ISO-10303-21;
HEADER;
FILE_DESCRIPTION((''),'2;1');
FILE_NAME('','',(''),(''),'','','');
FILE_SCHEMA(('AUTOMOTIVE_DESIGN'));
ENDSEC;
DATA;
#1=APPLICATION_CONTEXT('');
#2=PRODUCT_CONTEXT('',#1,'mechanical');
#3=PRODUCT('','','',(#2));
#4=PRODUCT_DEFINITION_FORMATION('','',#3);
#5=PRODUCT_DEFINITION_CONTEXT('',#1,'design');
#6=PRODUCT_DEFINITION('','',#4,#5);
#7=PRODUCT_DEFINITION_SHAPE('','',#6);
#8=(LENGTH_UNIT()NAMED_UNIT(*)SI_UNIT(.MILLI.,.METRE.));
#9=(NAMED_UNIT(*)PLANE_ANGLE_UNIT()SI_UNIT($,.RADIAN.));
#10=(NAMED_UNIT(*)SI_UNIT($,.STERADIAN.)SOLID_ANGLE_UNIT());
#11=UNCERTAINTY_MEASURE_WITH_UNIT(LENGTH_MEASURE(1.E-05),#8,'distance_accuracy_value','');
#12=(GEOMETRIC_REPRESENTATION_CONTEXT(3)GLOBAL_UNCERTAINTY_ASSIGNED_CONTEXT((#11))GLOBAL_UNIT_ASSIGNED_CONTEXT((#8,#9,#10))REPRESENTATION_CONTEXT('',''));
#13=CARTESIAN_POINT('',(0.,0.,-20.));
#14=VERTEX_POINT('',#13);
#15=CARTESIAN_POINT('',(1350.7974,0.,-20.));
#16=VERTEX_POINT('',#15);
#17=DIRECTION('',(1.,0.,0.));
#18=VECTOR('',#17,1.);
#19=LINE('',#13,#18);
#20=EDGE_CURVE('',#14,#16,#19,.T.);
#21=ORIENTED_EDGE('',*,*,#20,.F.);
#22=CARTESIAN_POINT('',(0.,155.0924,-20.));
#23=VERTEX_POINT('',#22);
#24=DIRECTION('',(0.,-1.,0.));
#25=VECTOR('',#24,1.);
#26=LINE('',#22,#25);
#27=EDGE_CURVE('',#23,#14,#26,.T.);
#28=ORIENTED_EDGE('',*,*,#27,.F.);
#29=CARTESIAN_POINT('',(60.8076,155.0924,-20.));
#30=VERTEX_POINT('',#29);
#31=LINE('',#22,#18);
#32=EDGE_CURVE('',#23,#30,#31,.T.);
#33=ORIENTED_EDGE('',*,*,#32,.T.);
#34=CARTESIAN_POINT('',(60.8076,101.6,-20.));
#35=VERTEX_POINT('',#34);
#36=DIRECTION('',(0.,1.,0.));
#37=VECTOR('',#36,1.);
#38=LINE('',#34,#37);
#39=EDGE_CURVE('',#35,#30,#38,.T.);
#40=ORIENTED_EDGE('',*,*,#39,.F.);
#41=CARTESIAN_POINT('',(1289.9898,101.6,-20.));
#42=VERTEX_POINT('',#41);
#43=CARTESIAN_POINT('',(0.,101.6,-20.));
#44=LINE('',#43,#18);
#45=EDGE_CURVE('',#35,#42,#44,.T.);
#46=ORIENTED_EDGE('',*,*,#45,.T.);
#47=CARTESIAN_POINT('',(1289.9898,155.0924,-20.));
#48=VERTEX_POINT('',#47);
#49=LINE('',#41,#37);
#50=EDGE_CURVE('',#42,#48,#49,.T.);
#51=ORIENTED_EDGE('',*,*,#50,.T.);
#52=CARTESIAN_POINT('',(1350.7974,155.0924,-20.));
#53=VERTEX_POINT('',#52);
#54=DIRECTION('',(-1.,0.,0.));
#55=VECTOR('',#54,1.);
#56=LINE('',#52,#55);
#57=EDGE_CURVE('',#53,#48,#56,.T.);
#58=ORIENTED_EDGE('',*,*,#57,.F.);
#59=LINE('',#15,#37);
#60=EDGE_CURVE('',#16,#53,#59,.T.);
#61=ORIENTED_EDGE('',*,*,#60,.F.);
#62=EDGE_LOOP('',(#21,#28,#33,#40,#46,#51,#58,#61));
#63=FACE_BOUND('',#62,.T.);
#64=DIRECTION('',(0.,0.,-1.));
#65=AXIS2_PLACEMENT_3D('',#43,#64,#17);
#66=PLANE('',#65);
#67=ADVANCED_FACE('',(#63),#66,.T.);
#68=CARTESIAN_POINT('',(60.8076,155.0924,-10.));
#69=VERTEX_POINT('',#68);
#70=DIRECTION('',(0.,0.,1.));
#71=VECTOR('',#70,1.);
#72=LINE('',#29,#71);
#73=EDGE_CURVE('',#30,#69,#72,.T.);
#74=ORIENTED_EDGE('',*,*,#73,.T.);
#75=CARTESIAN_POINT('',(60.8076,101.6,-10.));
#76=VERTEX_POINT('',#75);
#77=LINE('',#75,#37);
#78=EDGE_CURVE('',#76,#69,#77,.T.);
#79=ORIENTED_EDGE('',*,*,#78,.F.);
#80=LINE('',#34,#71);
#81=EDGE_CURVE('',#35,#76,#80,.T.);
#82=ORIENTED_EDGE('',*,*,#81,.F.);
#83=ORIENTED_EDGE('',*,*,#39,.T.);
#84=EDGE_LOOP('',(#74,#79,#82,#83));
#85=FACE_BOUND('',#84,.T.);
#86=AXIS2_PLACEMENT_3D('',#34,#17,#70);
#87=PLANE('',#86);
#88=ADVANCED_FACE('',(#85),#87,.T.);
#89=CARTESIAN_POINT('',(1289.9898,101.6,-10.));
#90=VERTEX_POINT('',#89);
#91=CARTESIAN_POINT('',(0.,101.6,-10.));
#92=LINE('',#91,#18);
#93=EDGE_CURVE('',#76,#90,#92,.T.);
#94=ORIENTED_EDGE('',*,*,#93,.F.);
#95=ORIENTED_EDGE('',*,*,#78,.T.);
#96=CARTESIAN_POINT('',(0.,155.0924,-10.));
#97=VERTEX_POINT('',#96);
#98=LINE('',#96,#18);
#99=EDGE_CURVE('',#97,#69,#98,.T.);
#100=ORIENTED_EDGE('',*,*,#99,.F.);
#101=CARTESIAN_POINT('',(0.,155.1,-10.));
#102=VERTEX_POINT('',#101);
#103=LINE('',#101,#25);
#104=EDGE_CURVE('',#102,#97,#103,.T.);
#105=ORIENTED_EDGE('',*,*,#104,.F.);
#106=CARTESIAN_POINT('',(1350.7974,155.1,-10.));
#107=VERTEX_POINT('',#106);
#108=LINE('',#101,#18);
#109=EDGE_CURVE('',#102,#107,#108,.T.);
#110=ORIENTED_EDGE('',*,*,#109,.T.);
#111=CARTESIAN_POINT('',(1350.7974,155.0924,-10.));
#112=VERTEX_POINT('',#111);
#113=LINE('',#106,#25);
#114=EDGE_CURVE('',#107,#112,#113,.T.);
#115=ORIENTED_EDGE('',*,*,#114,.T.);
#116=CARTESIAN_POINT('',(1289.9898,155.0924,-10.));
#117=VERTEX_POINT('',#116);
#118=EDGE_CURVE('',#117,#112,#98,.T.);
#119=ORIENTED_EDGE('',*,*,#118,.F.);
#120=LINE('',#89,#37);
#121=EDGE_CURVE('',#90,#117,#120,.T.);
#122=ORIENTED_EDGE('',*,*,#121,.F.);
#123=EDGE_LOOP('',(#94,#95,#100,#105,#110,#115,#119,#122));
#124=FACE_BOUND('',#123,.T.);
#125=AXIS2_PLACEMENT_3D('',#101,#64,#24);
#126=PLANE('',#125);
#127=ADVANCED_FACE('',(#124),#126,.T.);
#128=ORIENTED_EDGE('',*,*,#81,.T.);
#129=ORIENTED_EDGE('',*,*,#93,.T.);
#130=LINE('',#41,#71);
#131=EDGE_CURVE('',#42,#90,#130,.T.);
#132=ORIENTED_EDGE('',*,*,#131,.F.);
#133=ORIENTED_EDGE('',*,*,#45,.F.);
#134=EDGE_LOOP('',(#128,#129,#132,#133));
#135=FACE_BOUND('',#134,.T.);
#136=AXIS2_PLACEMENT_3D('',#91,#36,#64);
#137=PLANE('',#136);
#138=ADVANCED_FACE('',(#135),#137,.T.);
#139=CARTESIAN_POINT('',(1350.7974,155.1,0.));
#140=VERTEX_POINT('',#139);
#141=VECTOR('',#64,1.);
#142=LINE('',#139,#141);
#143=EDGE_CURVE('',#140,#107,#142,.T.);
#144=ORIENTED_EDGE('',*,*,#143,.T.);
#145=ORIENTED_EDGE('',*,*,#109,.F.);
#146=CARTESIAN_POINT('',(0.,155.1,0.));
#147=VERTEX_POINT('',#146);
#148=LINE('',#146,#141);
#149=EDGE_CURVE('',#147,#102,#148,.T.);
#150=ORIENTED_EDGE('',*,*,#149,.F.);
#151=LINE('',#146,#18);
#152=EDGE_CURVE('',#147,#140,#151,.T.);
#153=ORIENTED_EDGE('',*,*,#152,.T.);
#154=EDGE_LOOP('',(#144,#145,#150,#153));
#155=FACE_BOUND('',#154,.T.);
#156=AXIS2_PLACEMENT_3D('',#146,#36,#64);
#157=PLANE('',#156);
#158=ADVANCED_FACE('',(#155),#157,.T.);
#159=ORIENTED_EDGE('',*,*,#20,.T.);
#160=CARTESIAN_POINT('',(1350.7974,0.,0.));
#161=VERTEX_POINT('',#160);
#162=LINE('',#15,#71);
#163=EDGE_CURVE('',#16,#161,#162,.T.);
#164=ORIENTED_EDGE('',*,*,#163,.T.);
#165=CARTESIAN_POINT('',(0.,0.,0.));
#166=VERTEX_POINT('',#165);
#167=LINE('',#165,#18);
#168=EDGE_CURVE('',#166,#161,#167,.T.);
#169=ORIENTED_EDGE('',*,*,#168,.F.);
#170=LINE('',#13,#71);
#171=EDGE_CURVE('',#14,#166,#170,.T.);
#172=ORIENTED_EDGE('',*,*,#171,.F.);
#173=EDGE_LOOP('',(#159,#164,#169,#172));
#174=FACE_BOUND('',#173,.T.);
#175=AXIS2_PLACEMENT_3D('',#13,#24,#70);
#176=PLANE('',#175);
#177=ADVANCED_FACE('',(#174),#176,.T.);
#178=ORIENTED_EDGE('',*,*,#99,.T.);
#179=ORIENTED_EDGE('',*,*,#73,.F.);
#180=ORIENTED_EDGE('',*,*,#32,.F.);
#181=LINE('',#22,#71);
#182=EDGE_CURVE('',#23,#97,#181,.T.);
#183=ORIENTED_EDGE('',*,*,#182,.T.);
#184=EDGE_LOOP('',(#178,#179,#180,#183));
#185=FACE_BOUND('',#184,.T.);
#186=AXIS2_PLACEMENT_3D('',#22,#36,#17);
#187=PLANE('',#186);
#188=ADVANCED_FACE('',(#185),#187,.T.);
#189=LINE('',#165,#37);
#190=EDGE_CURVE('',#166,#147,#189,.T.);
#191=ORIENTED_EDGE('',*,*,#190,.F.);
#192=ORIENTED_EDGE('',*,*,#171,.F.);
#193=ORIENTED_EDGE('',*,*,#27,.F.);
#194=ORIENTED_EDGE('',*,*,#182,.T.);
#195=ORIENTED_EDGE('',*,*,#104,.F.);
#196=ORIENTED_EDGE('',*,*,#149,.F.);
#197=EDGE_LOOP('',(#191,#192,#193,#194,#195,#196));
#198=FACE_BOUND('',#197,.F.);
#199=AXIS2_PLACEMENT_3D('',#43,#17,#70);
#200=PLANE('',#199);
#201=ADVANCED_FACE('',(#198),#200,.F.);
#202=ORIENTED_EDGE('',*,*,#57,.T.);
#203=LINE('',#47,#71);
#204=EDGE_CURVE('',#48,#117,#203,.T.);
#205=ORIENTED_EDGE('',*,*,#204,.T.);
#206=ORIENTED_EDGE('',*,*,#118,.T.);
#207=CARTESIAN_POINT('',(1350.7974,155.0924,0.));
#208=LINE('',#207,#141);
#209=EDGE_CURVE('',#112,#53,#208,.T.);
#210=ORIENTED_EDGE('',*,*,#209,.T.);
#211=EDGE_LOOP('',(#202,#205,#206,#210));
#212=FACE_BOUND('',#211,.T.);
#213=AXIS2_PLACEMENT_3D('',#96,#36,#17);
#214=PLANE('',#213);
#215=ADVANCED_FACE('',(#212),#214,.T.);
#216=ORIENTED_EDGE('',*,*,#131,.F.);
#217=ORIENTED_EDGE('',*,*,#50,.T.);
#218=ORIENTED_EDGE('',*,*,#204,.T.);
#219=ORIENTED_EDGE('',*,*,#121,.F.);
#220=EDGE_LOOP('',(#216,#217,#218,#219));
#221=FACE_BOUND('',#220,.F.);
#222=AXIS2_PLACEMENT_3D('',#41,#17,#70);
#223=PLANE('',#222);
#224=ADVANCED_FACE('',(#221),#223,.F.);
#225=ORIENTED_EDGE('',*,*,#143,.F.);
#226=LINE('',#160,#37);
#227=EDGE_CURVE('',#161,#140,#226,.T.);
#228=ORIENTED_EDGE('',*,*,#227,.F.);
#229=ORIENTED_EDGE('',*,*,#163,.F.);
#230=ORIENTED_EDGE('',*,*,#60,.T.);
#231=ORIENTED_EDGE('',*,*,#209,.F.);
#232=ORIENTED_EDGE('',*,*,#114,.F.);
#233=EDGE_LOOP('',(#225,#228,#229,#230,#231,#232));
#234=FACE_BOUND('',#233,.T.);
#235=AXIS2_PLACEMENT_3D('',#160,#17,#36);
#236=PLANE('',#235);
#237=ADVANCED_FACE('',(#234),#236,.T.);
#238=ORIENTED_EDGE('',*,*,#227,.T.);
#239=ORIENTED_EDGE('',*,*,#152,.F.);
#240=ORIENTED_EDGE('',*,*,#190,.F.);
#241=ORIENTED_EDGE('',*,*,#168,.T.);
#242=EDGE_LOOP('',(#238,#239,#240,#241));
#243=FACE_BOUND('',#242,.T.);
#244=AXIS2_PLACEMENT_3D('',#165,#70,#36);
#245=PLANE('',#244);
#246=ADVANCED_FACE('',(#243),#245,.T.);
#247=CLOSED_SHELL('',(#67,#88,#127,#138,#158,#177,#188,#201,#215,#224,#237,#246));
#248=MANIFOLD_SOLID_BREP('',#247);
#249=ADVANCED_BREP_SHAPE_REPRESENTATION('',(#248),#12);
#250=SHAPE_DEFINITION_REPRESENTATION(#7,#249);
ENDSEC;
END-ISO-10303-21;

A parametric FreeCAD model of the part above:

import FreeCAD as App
import Part
import Sketcher
Q = App.Units.Quantity

doc = App.newDocument("Part")
body = doc.addObject("PartDesign::Body", "Body")

sketch1 = doc.addObject("Sketcher::SketchObject", "Sketch")
body.addObject(sketch1)
sketch1.AttachmentSupport = (doc.YZ_Plane, [""])
sketch1.MapMode = "FlatFace"
sketch1.addGeometry(Part.LineSegment(App.Vector(155.1, 0, 0), App.Vector(0, 0, 0)), False)
sketch1.addGeometry(Part.LineSegment(App.Vector(0, 0, 0), App.Vector(0, -20, 0)), False)
sketch1.addGeometry(Part.LineSegment(App.Vector(0, -20, 0), App.Vector(101.6, -20, 0)), False)
sketch1.addGeometry(Part.LineSegment(App.Vector(101.6, -20, 0), App.Vector(101.6, -10, 0)), False)
sketch1.addGeometry(Part.LineSegment(App.Vector(101.6, -10, 0), App.Vector(155.1, -10, 0)), False)
sketch1.addGeometry(Part.LineSegment(App.Vector(155.1, -10, 0), App.Vector(155.1, 0, 0)), False)
sketch1.addConstraint(Sketcher.Constraint("Coincident", 0, 2, 1, 1))
sketch1.addConstraint(Sketcher.Constraint("Coincident", 1, 2, 2, 1))
sketch1.addConstraint(Sketcher.Constraint("Coincident", 2, 2, 3, 1))
sketch1.addConstraint(Sketcher.Constraint("Coincident", 3, 2, 4, 1))
sketch1.addConstraint(Sketcher.Constraint("Coincident", 4, 2, 5, 1))
sketch1.addConstraint(Sketcher.Constraint("Coincident", 5, 2, 0, 1))
sketch1.addConstraint(Sketcher.Constraint("Horizontal", 0))
sketch1.addConstraint(Sketcher.Constraint("Vertical", 1))
sketch1.addConstraint(Sketcher.Constraint("Horizontal", 2))
sketch1.addConstraint(Sketcher.Constraint("Vertical", 3))
sketch1.addConstraint(Sketcher.Constraint("Horizontal", 4))
sketch1.addConstraint(Sketcher.Constraint("Vertical", 5))
sketch1.addConstraint(Sketcher.Constraint("Coincident", 0, 2, -1, 1))
sketch1.addConstraint(Sketcher.Constraint("Equal", 3, 5))
sketch1.addConstraint(Sketcher.Constraint("DistanceX", 2, 1, 2, 2, Q("4 in")))
sketch1.addConstraint(Sketcher.Constraint("DistanceX", 0, 2, 0, 1, Q("6.1063 in")))
sketch1.addConstraint(Sketcher.Constraint("DistanceY", 1, 2, 1, 1, Q("0.7874 in")))
pad1 = doc.addObject("PartDesign::Pad", "Pad")
body.addObject(pad1)
pad1.Profile = sketch1
pad1.Length = Q("53.181 in")

sketch2 = doc.addObject("Sketcher::SketchObject", "Sketch001")
body.addObject(sketch2)
sketch2.AttachmentSupport = (doc.XZ_Plane, [""])
sketch2.MapMode = "FlatFace"
sketch2.AttachmentOffset = App.Placement(App.Vector(0, 0, -4 * 25.4), App.Rotation())
sketch2.addGeometry(Part.LineSegment(App.Vector(1289.9898, -10, 0), App.Vector(1350.7974, -10, 0)), False)
sketch2.addGeometry(Part.LineSegment(App.Vector(1350.7974, -10, 0), App.Vector(1350.7974, -20, 0)), False)
sketch2.addGeometry(Part.LineSegment(App.Vector(1350.7974, -20, 0), App.Vector(1289.9898, -20, 0)), False)
sketch2.addGeometry(Part.LineSegment(App.Vector(1289.9898, -20, 0), App.Vector(1289.9898, -10, 0)), False)
sketch2.addConstraint(Sketcher.Constraint("Coincident", 0, 2, 1, 1))
sketch2.addConstraint(Sketcher.Constraint("Coincident", 1, 2, 2, 1))
sketch2.addConstraint(Sketcher.Constraint("Coincident", 2, 2, 3, 1))
sketch2.addConstraint(Sketcher.Constraint("Coincident", 3, 2, 0, 1))
sketch2.addConstraint(Sketcher.Constraint("Horizontal", 0))
sketch2.addConstraint(Sketcher.Constraint("Vertical", 1))
sketch2.addConstraint(Sketcher.Constraint("Horizontal", 2))
sketch2.addConstraint(Sketcher.Constraint("Vertical", 3))
sketch2.addConstraint(Sketcher.Constraint("DistanceX", 0, 1, 0, 2, Q("2.394 in")))
sketch2.addConstraint(Sketcher.Constraint("DistanceY", 1, 2, 1, 1, Q("0.3937 in")))
sketch2.addConstraint(Sketcher.Constraint("DistanceX", -1, 1, 0, 2, Q("53.181 in")))
sketch2.addConstraint(Sketcher.Constraint("DistanceY", 0, 2, -1, 1, Q("0.3937 in")))
pad2 = doc.addObject("PartDesign::Pad", "Pad001")
body.addObject(pad2)
pad2.Profile = sketch2
pad2.Length = Q("2.106 in")
pad2.Reversed = True

sketch3 = doc.addObject("Sketcher::SketchObject", "Sketch002")
body.addObject(sketch3)
sketch3.AttachmentSupport = (doc.XZ_Plane, [""])
sketch3.MapMode = "FlatFace"
sketch3.AttachmentOffset = App.Placement(App.Vector(0, 0, -4 * 25.4), App.Rotation())
sketch3.addGeometry(Part.LineSegment(App.Vector(0, -10, 0), App.Vector(60.8076, -10, 0)), False)
sketch3.addGeometry(Part.LineSegment(App.Vector(60.8076, -10, 0), App.Vector(60.8076, -20, 0)), False)
sketch3.addGeometry(Part.LineSegment(App.Vector(60.8076, -20, 0), App.Vector(0, -20, 0)), False)
sketch3.addGeometry(Part.LineSegment(App.Vector(0, -20, 0), App.Vector(0, -10, 0)), False)
sketch3.addConstraint(Sketcher.Constraint("Coincident", 0, 2, 1, 1))
sketch3.addConstraint(Sketcher.Constraint("Coincident", 1, 2, 2, 1))
sketch3.addConstraint(Sketcher.Constraint("Coincident", 2, 2, 3, 1))
sketch3.addConstraint(Sketcher.Constraint("Coincident", 3, 2, 0, 1))
sketch3.addConstraint(Sketcher.Constraint("Horizontal", 0))
sketch3.addConstraint(Sketcher.Constraint("Vertical", 1))
sketch3.addConstraint(Sketcher.Constraint("Horizontal", 2))
sketch3.addConstraint(Sketcher.Constraint("Vertical", 3))
sketch3.addConstraint(Sketcher.Constraint("PointOnObject", 2, 2, -2))
sketch3.addConstraint(Sketcher.Constraint("DistanceX", 0, 1, 0, 2, Q("2.394 in")))
sketch3.addConstraint(Sketcher.Constraint("DistanceY", 1, 2, 1, 1, Q("0.3937 in")))
sketch3.addConstraint(Sketcher.Constraint("DistanceY", 0, 2, -1, 1, Q("0.3937 in")))
pad3 = doc.addObject("PartDesign::Pad", "Pad002")
body.addObject(pad3)
pad3.Profile = sketch3
pad3.Length = Q("2.106 in")
pad3.Reversed = True

doc.recompute()
